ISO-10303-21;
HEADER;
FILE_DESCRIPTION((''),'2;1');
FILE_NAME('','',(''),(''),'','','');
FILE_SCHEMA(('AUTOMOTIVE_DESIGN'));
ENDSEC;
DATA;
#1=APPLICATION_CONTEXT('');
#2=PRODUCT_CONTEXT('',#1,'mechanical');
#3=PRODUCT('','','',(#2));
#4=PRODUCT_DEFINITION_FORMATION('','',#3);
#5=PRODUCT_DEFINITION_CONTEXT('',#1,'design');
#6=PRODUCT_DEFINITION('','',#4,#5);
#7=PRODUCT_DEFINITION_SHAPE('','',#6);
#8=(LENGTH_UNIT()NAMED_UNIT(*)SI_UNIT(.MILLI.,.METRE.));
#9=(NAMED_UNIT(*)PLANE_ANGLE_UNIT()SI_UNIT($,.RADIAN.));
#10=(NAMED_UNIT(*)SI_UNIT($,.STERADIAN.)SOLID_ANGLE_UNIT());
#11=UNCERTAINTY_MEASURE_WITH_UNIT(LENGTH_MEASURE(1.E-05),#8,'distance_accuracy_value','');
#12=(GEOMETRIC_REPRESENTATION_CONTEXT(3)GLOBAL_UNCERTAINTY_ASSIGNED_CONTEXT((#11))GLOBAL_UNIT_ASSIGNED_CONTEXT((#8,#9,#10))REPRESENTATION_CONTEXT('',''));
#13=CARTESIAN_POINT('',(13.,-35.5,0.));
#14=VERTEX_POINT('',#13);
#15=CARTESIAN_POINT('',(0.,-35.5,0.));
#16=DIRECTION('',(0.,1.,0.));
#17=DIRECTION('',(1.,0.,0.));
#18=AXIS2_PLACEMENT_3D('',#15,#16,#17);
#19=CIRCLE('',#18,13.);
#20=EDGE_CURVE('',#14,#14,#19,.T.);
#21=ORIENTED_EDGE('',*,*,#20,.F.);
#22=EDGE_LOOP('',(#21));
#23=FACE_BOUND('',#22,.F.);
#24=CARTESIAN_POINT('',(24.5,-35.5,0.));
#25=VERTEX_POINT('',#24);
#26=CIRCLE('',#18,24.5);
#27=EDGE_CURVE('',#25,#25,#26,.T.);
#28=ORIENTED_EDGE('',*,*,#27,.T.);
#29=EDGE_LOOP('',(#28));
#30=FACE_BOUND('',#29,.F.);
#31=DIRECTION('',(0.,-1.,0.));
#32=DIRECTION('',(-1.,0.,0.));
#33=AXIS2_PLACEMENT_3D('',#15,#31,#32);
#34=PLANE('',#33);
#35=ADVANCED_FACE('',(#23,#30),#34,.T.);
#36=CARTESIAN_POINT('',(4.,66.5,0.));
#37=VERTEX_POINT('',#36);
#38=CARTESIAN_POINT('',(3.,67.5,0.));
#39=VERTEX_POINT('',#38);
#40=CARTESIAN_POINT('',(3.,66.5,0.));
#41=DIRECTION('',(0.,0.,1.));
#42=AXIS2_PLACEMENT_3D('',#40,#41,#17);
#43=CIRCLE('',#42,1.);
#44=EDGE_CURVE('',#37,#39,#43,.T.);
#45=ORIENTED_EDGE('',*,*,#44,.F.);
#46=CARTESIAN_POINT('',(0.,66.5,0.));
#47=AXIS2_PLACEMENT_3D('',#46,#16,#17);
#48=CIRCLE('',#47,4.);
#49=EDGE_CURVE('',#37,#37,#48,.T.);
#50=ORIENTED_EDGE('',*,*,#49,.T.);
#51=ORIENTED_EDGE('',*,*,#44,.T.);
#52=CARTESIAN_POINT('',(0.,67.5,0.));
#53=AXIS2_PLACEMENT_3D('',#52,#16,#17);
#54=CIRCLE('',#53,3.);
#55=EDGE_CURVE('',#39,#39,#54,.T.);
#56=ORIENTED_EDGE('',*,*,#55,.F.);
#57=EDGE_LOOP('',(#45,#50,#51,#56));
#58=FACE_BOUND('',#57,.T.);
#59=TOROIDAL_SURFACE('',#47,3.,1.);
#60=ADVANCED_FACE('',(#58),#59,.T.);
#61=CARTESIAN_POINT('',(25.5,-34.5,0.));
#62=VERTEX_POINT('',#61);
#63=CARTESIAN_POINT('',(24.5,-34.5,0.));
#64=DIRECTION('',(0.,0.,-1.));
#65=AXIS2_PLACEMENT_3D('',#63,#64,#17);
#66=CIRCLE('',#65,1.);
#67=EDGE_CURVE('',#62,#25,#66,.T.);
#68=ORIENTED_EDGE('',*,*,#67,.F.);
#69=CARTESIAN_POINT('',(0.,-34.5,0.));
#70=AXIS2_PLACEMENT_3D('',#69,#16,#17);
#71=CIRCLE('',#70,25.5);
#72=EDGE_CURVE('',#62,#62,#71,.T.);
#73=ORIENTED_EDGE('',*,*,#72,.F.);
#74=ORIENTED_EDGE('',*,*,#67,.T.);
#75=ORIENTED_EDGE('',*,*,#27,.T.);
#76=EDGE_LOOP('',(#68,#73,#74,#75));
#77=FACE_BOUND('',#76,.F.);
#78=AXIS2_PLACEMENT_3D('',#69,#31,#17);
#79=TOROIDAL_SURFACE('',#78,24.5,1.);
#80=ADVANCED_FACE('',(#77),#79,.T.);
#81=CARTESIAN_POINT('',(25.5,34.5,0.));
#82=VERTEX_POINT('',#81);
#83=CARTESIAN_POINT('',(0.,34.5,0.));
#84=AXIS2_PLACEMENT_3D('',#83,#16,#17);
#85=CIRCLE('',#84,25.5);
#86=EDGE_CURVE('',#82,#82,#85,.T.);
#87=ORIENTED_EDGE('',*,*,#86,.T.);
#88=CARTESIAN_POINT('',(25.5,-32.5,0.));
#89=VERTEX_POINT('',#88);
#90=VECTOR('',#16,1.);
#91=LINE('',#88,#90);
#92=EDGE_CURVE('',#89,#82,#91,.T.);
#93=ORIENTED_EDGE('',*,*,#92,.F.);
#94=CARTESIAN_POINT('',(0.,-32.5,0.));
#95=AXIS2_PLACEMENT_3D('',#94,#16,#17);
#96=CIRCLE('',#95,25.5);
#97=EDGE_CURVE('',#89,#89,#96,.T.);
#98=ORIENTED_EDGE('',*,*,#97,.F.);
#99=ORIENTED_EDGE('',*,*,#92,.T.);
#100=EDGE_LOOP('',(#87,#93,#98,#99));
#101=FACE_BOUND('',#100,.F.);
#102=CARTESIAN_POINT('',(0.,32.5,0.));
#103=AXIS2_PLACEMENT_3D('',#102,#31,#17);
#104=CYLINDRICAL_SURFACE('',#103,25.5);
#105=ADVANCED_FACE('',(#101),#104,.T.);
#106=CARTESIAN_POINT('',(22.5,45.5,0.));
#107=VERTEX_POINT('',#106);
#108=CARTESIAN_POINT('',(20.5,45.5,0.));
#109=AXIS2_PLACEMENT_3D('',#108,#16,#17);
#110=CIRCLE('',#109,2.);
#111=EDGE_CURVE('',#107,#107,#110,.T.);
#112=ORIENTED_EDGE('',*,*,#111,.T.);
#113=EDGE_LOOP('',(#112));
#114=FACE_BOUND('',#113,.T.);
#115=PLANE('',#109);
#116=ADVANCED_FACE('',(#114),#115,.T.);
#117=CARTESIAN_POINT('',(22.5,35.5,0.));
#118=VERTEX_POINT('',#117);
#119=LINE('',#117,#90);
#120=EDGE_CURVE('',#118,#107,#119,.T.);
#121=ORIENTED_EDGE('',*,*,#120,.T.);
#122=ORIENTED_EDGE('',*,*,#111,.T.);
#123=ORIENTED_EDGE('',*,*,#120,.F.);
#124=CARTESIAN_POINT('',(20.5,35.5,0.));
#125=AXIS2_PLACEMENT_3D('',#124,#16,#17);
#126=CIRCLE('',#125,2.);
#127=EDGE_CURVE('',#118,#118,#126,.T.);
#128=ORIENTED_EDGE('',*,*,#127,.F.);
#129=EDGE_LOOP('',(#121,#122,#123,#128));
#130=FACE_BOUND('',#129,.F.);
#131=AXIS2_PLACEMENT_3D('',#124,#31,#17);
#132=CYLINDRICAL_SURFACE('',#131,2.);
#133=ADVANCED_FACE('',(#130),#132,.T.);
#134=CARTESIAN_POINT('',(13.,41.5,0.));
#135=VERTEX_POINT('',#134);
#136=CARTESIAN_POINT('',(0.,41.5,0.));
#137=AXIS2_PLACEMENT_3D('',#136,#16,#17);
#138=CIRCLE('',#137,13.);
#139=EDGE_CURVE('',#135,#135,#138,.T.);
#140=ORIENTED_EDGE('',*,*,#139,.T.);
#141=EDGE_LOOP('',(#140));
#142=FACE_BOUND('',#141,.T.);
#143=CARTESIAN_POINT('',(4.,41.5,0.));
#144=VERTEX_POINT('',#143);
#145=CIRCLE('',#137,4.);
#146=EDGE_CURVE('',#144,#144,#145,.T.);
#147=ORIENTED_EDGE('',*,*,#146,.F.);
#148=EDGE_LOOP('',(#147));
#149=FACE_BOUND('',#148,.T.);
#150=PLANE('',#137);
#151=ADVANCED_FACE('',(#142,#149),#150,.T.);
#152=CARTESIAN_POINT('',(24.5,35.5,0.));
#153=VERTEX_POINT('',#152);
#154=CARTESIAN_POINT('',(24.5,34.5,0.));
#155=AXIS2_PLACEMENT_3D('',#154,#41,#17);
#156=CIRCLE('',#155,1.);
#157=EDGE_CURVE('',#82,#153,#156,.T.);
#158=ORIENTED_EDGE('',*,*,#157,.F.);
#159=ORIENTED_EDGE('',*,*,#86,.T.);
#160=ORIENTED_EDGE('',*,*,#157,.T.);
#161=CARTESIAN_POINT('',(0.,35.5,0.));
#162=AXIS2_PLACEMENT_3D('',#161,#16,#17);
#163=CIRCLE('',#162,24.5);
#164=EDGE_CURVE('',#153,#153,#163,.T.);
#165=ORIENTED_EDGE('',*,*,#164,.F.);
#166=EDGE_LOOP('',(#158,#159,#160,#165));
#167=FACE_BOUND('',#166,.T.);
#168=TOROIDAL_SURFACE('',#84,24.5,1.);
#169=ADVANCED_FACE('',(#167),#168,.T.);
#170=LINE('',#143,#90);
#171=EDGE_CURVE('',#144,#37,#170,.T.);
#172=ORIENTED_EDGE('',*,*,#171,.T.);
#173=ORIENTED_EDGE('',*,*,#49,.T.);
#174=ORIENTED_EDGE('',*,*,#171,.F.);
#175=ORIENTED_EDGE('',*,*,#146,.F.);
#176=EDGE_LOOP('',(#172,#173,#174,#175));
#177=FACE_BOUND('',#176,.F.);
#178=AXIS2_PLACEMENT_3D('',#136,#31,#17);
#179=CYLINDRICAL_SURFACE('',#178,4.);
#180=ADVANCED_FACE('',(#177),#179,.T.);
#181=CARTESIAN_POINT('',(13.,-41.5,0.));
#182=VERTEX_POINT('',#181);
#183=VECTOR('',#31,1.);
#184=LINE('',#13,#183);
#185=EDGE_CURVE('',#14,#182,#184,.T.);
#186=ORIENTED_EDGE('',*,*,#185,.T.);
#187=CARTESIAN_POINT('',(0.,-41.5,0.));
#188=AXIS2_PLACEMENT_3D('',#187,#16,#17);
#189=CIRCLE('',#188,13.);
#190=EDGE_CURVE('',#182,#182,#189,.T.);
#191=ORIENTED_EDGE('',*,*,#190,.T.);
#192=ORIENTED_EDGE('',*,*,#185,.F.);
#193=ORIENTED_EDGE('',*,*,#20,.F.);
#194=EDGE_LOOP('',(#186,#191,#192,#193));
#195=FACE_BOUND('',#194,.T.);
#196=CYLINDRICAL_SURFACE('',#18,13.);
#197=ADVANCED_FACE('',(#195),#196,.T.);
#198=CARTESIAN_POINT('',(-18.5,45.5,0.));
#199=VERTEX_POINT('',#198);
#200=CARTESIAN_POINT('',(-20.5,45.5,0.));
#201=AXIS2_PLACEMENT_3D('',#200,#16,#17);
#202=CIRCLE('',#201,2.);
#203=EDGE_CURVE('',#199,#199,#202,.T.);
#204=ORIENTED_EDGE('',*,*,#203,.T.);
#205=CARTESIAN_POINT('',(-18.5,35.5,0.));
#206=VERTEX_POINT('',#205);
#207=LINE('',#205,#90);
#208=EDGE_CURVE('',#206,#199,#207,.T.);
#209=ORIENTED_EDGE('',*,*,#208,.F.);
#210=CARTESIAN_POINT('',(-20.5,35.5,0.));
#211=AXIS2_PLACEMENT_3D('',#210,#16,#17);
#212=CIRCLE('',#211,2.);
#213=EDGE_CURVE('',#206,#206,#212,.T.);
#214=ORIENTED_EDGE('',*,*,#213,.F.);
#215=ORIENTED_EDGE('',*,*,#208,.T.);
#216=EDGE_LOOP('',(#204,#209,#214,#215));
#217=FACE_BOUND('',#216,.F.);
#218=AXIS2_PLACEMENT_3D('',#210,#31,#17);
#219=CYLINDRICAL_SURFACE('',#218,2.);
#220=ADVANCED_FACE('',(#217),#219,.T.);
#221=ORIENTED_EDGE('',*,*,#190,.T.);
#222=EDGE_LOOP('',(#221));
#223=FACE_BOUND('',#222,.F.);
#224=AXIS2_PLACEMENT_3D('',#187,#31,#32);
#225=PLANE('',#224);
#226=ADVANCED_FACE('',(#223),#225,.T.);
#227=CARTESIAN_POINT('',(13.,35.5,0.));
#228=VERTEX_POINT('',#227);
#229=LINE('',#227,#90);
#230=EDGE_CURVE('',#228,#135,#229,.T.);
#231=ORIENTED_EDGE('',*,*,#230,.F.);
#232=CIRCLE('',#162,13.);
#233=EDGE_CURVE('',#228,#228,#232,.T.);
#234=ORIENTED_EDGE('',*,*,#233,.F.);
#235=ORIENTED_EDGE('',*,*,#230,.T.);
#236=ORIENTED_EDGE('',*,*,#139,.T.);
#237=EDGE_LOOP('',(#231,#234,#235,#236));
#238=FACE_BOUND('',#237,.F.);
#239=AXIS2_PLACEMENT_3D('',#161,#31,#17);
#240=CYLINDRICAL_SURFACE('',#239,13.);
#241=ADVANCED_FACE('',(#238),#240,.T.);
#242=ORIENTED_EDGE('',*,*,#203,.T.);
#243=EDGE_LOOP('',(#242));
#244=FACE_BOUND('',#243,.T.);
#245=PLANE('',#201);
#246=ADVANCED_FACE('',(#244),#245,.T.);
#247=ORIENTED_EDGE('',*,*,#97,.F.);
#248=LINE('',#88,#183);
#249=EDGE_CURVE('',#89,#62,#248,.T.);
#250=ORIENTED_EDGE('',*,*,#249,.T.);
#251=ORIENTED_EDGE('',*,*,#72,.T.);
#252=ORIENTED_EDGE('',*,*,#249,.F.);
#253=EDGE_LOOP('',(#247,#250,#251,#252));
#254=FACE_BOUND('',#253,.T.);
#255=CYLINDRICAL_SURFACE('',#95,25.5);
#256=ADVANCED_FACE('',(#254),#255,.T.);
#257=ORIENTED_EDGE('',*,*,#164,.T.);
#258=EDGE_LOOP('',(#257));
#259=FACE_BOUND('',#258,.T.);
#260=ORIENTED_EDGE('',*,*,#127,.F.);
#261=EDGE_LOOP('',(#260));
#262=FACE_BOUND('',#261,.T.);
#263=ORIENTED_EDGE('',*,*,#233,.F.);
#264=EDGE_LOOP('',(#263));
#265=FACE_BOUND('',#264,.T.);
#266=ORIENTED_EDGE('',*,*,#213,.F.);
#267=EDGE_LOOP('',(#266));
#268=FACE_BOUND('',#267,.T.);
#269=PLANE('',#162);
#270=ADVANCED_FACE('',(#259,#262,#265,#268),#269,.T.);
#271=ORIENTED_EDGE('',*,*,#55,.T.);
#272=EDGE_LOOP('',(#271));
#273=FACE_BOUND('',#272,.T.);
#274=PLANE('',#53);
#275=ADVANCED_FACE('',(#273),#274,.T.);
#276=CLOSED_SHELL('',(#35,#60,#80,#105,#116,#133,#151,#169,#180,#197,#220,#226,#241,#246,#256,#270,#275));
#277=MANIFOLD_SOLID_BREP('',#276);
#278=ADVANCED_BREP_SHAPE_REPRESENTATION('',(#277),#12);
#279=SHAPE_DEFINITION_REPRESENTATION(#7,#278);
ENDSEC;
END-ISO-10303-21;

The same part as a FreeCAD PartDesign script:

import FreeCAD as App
import Part
import Sketcher

V = App.Vector


def edges_at(feature, points):
    """Names of the edges that pass closest to the given points."""
    edges = feature.Shape.Edges
    near = lambda p: min(range(len(edges)), key=lambda i: edges[i].distToShape(Part.Vertex(*p))[0])
    return sorted({f"Edge{near(p) + 1}" for p in points})

doc = App.newDocument("Part")
body = doc.addObject("PartDesign::Body", "Body")

# Sketch on XZ plane
sketch1 = body.newObject("Sketcher::SketchObject", "Sketch")
sketch1.AttachmentSupport = (doc.getObject("XZ_Plane"), [""])
sketch1.MapMode = "FlatFace"
sketch1.addGeometry(Part.Circle(V(0, 0, 0), V(0, 0, 1), 26), False)
sketch1.addConstraint([
    Sketcher.Constraint("Coincident", 0, 3, -1, 1),
    Sketcher.Constraint("Diameter", 0, 51.0),
])
pad1 = body.newObject("PartDesign::Pad", "Pad")
pad1.Profile = sketch1
pad1.Length = 65
pad1.Midplane = True

# Sketch on XZ plane
sketch2 = body.newObject("Sketcher::SketchObject", "Sketch001")
sketch2.AttachmentSupport = (doc.getObject("XZ_Plane"), [""])
sketch2.MapMode = "FlatFace"
sketch2.AttachmentOffset = App.Placement(V(0, 0, -32.5), App.Rotation())
sketch2.addGeometry(Part.Circle(V(0, 0, 0), V(0, 0, 1), 26), False)
sketch2.addConstraint([
    Sketcher.Constraint("Coincident", 0, 3, -1, 1),
    Sketcher.Constraint("Diameter", 0, 51.0),
])
pad2 = body.newObject("PartDesign::Pad", "Pad001")
pad2.Profile = sketch2
pad2.Length = 3
pad2.Reversed = True
doc.recompute()

fillet = body.newObject("PartDesign::Fillet", "Fillet")
fillet.Base = (pad2, edges_at(pad2, [(-25.5, 35.5, 0)]))
fillet.Radius = 1

# Sketch on XZ plane
sketch3 = body.newObject("Sketcher::SketchObject", "Sketch002")
sketch3.AttachmentSupport = (doc.getObject("XZ_Plane"), [""])
sketch3.MapMode = "FlatFace"
sketch3.AttachmentOffset = App.Placement(V(0, 0, -35.5), App.Rotation())
sketch3.addGeometry(Part.Circle(V(0, 0, 0), V(0, 0, 1), 13), False)
sketch3.addConstraint([
    Sketcher.Constraint("Coincident", 0, 3, -1, 1),
    Sketcher.Constraint("Diameter", 0, 26.0),
])
pad3 = body.newObject("PartDesign::Pad", "Pad002")
pad3.Profile = sketch3
pad3.Length = 6
pad3.Reversed = True
doc.recompute()

mirrored = body.newObject("PartDesign::Mirrored", "Mirrored")
mirrored.Originals = [pad2, pad3]
mirrored.MirrorPlane = (doc.getObject("XZ_Plane"), [""])
body.Tip = mirrored
doc.recompute()

fillet2 = body.newObject("PartDesign::Fillet", "Fillet001")
fillet2.Base = (mirrored, edges_at(mirrored, [(-25.5, -35.5, 0)]))
fillet2.Radius = 1

# Sketch on XZ plane
sketch4 = body.newObject("Sketcher::SketchObject", "Sketch003")
sketch4.AttachmentSupport = (doc.getObject("XZ_Plane"), [""])
sketch4.MapMode = "FlatFace"
sketch4.AttachmentOffset = App.Placement(V(0, 0, -41.5), App.Rotation())
sketch4.addGeometry(Part.Circle(V(0, 0, 0), V(0, 0, 1), 4), False)
sketch4.addConstraint([
    Sketcher.Constraint("Coincident", 0, 3, -1, 1),
    Sketcher.Constraint("Diameter", 0, 8.0),
])
pad4 = body.newObject("PartDesign::Pad", "Pad003")
pad4.Profile = sketch4
pad4.Length = 26
pad4.Reversed = True

# Sketch on XZ plane
sketch5 = body.newObject("Sketcher::SketchObject", "Sketch004")
sketch5.AttachmentSupport = (doc.getObject("XZ_Plane"), [""])
sketch5.MapMode = "FlatFace"
sketch5.AttachmentOffset = App.Placement(V(0, 0, -35.5), App.Rotation())
sketch5.addGeometry([
    Part.Circle(V(-20.5, 0, 0), V(0, 0, 1), 2),
    Part.Circle(V(20.5, 0, 0), V(0, 0, 1), 2),
], False)
sketch5.addConstraint([
    Sketcher.Constraint("Equal", 0, 1),
    Sketcher.Constraint("Symmetric", 0, 3, 1, 3, -1, 1),
    Sketcher.Constraint("PointOnObject", 0, 3, -1),
    Sketcher.Constraint("Diameter", 0, 4.0),
    Sketcher.Constraint("DistanceX", 0, 3, 1, 3, 41.0),
])
pad5 = body.newObject("PartDesign::Pad", "Pad004")
pad5.Profile = sketch5
pad5.Length = 10
pad5.Reversed = True
doc.recompute()

fillet3 = body.newObject("PartDesign::Fillet", "Fillet002")
fillet3.Base = (pad5, edges_at(pad5, [(-4, 67.5, 0)]))
fillet3.Radius = 1

doc.recompute()
